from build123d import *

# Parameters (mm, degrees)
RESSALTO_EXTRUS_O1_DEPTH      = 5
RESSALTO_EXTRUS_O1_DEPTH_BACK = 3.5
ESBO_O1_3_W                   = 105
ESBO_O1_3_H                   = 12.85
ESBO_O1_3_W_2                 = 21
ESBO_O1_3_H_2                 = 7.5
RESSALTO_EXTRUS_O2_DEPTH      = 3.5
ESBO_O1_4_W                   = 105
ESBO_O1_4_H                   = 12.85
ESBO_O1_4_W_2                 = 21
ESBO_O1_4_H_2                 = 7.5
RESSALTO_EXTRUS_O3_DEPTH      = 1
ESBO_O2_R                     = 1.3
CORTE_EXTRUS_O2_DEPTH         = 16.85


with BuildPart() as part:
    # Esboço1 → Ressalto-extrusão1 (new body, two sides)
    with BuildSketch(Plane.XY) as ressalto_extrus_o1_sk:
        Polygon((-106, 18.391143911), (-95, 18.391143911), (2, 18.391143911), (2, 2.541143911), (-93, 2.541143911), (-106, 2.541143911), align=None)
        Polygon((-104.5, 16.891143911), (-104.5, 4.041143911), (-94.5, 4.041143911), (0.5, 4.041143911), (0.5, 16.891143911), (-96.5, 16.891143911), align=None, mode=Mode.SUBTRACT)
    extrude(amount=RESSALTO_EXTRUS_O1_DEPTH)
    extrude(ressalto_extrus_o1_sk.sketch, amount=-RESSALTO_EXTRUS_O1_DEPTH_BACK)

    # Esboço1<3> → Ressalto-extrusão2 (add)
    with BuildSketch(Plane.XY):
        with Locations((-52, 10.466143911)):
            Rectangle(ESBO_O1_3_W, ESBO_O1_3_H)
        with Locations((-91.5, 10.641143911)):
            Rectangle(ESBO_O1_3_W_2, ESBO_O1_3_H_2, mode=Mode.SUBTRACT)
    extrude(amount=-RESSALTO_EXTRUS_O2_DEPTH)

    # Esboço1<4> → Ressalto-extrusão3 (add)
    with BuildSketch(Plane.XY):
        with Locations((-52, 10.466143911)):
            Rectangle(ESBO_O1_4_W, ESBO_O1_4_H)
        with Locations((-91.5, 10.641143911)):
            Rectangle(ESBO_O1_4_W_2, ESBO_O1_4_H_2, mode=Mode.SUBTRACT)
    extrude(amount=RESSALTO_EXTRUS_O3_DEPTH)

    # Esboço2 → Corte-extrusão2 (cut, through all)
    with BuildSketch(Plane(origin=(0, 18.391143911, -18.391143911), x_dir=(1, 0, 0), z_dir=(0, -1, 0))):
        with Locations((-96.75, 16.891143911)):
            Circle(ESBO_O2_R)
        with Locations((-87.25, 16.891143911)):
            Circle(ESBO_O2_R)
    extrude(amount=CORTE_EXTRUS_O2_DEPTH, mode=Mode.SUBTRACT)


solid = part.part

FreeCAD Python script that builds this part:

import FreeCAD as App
import Part
import Sketcher
from FreeCAD import Vector

doc = App.newDocument("Part")
params = doc.addObject("Spreadsheet::Sheet", "Params")
for row, (alias, value) in enumerate([
    ("sketch1_width", "108 mm"),
    ("sketch1_width2", "105 mm"),
    ("sketch1_height", "15.85 mm"),
    ("sketch1_height2", "12.85 mm"),
    ("pad1_length", "5 mm"),
    ("pad1_length2", "3.5 mm"),
    ("sketch2_width", "105 mm"),
    ("sketch2_width2", "21 mm"),
    ("sketch2_height", "7.5 mm"),
    ("sketch2_height2", "12.85 mm"),
    ("pad2_length", "3.5 mm"),
    ("sketch3_width", "105 mm"),
    ("sketch3_width2", "21 mm"),
    ("sketch3_height", "7.5 mm"),
    ("sketch3_height2", "12.85 mm"),
    ("pad3_length", "1 mm"),
    ("sketch4_diameter", "2.6 mm"),
], start=1):
    params.set(f"A{row}", alias)
    params.set(f"B{row}", "=" + value)
    params.setAlias(f"B{row}", alias)

body = doc.addObject("PartDesign::Body", "Body")

sketch1 = body.newObject("Sketcher::SketchObject", "Sketch")
sketch1.AttachmentSupport = (doc.getObject("XY_Plane"), [""])
sketch1.MapMode = "FlatFace"
sketch1.addGeometry(Part.LineSegment(Vector(2, 18, 0), Vector(-106, 18, 0)), False)
sketch1.addGeometry(Part.LineSegment(Vector(-106, 18, 0), Vector(-106, 3, 0)), False)
sketch1.addGeometry(Part.LineSegment(Vector(-106, 3, 0), Vector(2, 3, 0)), False)
sketch1.addGeometry(Part.LineSegment(Vector(2, 3, 0), Vector(2, 18, 0)), False)
sketch1.addGeometry(Part.LineSegment(Vector(-104, 17, 0), Vector(0, 17, 0)), False)
sketch1.addGeometry(Part.LineSegment(Vector(0, 17, 0), Vector(0, 4, 0)), False)
sketch1.addGeometry(Part.LineSegment(Vector(0, 4, 0), Vector(-104, 4, 0)), False)
sketch1.addGeometry(Part.LineSegment(Vector(-104, 4, 0), Vector(-104, 17, 0)), False)
sketch1.addConstraint(Sketcher.Constraint("Coincident", 0, 2, 1, 1))
sketch1.addConstraint(Sketcher.Constraint("Coincident", 1, 2, 2, 1))
sketch1.addConstraint(Sketcher.Constraint("Coincident", 2, 2, 3, 1))
sketch1.addConstraint(Sketcher.Constraint("Coincident", 3, 2, 0, 1))
sketch1.addConstraint(Sketcher.Constraint("Coincident", 4, 2, 5, 1))
sketch1.addConstraint(Sketcher.Constraint("Coincident", 5, 2, 6, 1))
sketch1.addConstraint(Sketcher.Constraint("Coincident", 6, 2, 7, 1))
sketch1.addConstraint(Sketcher.Constraint("Coincident", 7, 2, 4, 1))
sketch1.addConstraint(Sketcher.Constraint("Horizontal", 0))
sketch1.addConstraint(Sketcher.Constraint("Vertical", 1))
sketch1.addConstraint(Sketcher.Constraint("Horizontal", 2))
sketch1.addConstraint(Sketcher.Constraint("Vertical", 3))
sketch1.addConstraint(Sketcher.Constraint("Horizontal", 4))
sketch1.addConstraint(Sketcher.Constraint("Vertical", 5))
sketch1.addConstraint(Sketcher.Constraint("Horizontal", 6))
sketch1.addConstraint(Sketcher.Constraint("Vertical", 7))
sketch1.addConstraint(Sketcher.Constraint("DistanceX", 0, 2, 0, 1, 108.0))
sketch1.addConstraint(Sketcher.Constraint("DistanceX", 4, 1, 4, 2, 105.0))
sketch1.addConstraint(Sketcher.Constraint("DistanceX", 0, 2, -1, 1, 106.0))
sketch1.addConstraint(Sketcher.Constraint("DistanceY", 1, 2, 1, 1, 15.85))
sketch1.addConstraint(Sketcher.Constraint("DistanceY", 5, 2, 5, 1, 12.85))
sketch1.addConstraint(Sketcher.Constraint("DistanceX", -1, 1, 4, 2, 0.5))
sketch1.addConstraint(Sketcher.Constraint("DistanceY", 4, 2, 3, 2, 1.5))
sketch1.addConstraint(Sketcher.Constraint("DistanceY", -1, 1, 0, 2, 18.391144))
sketch1.setExpression("Constraints[16]", "Params.sketch1_width")
sketch1.setExpression("Constraints[17]", "Params.sketch1_width2")
sketch1.setExpression("Constraints[19]", "Params.sketch1_height")
sketch1.setExpression("Constraints[20]", "Params.sketch1_height2")
pad1 = body.newObject("PartDesign::Pad", "Pad")
pad1.Profile = sketch1
pad1.Type = "TwoLengths"
pad1.setExpression("Length", "Params.pad1_length")
pad1.setExpression("Length2", "Params.pad1_length2")

sketch2 = body.newObject("Sketcher::SketchObject", "Sketch001")
sketch2.AttachmentSupport = (doc.getObject("XY_Plane"), [""])
sketch2.MapMode = "FlatFace"
sketch2.addGeometry(Part.LineSegment(Vector(-104, 17, 0), Vector(-104, 4, 0)), False)
sketch2.addGeometry(Part.LineSegment(Vector(-104, 4, 0), Vector(0, 4, 0)), False)
sketch2.addGeometry(Part.LineSegment(Vector(0, 4, 0), Vector(0, 17, 0)), False)
sketch2.addGeometry(Part.LineSegment(Vector(0, 17, 0), Vector(-104, 17, 0)), False)
sketch2.addGeometry(Part.LineSegment(Vector(-81, 7, 0), Vector(-102, 7, 0)), False)
sketch2.addGeometry(Part.LineSegment(Vector(-102, 7, 0), Vector(-102, 14, 0)), False)
sketch2.addGeometry(Part.LineSegment(Vector(-102, 14, 0), Vector(-81, 14, 0)), False)
sketch2.addGeometry(Part.LineSegment(Vector(-81, 14, 0), Vector(-81, 7, 0)), False)
sketch2.addConstraint(Sketcher.Constraint("Coincident", 0, 2, 1, 1))
sketch2.addConstraint(Sketcher.Constraint("Coincident", 1, 2, 2, 1))
sketch2.addConstraint(Sketcher.Constraint("Coincident", 2, 2, 3, 1))
sketch2.addConstraint(Sketcher.Constraint("Coincident", 3, 2, 0, 1))
sketch2.addConstraint(Sketcher.Constraint("Coincident", 4, 2, 5, 1))
sketch2.addConstraint(Sketcher.Constraint("Coincident", 5, 2, 6, 1))
sketch2.addConstraint(Sketcher.Constraint("Coincident", 6, 2, 7, 1))
sketch2.addConstraint(Sketcher.Constraint("Coincident", 7, 2, 4, 1))
sketch2.addConstraint(Sketcher.Constraint("Vertical", 0))
sketch2.addConstraint(Sketcher.Constraint("Horizontal", 1))
sketch2.addConstraint(Sketcher.Constraint("Vertical", 2))
sketch2.addConstraint(Sketcher.Constraint("Horizontal", 3))
sketch2.addConstraint(Sketcher.Constraint("Horizontal", 4))
sketch2.addConstraint(Sketcher.Constraint("Vertical", 5))
sketch2.addConstraint(Sketcher.Constraint("Horizontal", 6))
sketch2.addConstraint(Sketcher.Constraint("Vertical", 7))
sketch2.addConstraint(Sketcher.Constraint("DistanceX", 1, 1, 1, 2, 105.0))
sketch2.addConstraint(Sketcher.Constraint("DistanceX", 4, 2, 4, 1, 21.0))
sketch2.addConstraint(Sketcher.Constraint("DistanceY", 5, 1, 5, 2, 7.5))
sketch2.addConstraint(Sketcher.Constraint("DistanceX", 4, 2, -1, 1, 102.0))
sketch2.addConstraint(Sketcher.Constraint("DistanceY", 4, 2, 3, 2, 10.0))
sketch2.addConstraint(Sketcher.Constraint("DistanceY", 0, 2, 0, 1, 12.85))
sketch2.addConstraint(Sketcher.Constraint("DistanceX", 0, 2, -1, 1, 104.5))
sketch2.addConstraint(Sketcher.Constraint("DistanceY", -1, 1, 0, 2, 4.041144))
sketch2.setExpression("Constraints[16]", "Params.sketch2_width")
sketch2.setExpression("Constraints[17]", "Params.sketch2_width2")
sketch2.setExpression("Constraints[18]", "Params.sketch2_height")
sketch2.setExpression("Constraints[21]", "Params.sketch2_height2")
pad2 = body.newObject("PartDesign::Pad", "Pad001")
pad2.Profile = sketch2
pad2.setExpression("Length", "Params.pad2_length")
pad2.Reversed = True

sketch3 = body.newObject("Sketcher::SketchObject", "Sketch002")
sketch3.AttachmentSupport = (doc.getObject("XY_Plane"), [""])
sketch3.MapMode = "FlatFace"
sketch3.addGeometry(Part.LineSegment(Vector(-104, 17, 0), Vector(-104, 4, 0)), False)
sketch3.addGeometry(Part.LineSegment(Vector(-104, 4, 0), Vector(0, 4, 0)), False)
sketch3.addGeometry(Part.LineSegment(Vector(0, 4, 0), Vector(0, 17, 0)), False)
sketch3.addGeometry(Part.LineSegment(Vector(0, 17, 0), Vector(-104, 17, 0)), False)
sketch3.addGeometry(Part.LineSegment(Vector(-81, 7, 0), Vector(-102, 7, 0)), False)
sketch3.addGeometry(Part.LineSegment(Vector(-102, 7, 0), Vector(-102, 14, 0)), False)
sketch3.addGeometry(Part.LineSegment(Vector(-102, 14, 0), Vector(-81, 14, 0)), False)
sketch3.addGeometry(Part.LineSegment(Vector(-81, 14, 0), Vector(-81, 7, 0)), False)
sketch3.addConstraint(Sketcher.Constraint("Coincident", 0, 2, 1, 1))
sketch3.addConstraint(Sketcher.Constraint("Coincident", 1, 2, 2, 1))
sketch3.addConstraint(Sketcher.Constraint("Coincident", 2, 2, 3, 1))
sketch3.addConstraint(Sketcher.Constraint("Coincident", 3, 2, 0, 1))
sketch3.addConstraint(Sketcher.Constraint("Coincident", 4, 2, 5, 1))
sketch3.addConstraint(Sketcher.Constraint("Coincident", 5, 2, 6, 1))
sketch3.addConstraint(Sketcher.Constraint("Coincident", 6, 2, 7, 1))
sketch3.addConstraint(Sketcher.Constraint("Coincident", 7, 2, 4, 1))
sketch3.addConstraint(Sketcher.Constraint("Vertical", 0))
sketch3.addConstraint(Sketcher.Constraint("Horizontal", 1))
sketch3.addConstraint(Sketcher.Constraint("Vertical", 2))
sketch3.addConstraint(Sketcher.Constraint("Horizontal", 3))
sketch3.addConstraint(Sketcher.Constraint("Horizontal", 4))
sketch3.addConstraint(Sketcher.Constraint("Vertical", 5))
sketch3.addConstraint(Sketcher.Constraint("Horizontal", 6))
sketch3.addConstraint(Sketcher.Constraint("Vertical", 7))
sketch3.addConstraint(Sketcher.Constraint("DistanceX", 1, 1, 1, 2, 105.0))
sketch3.addConstraint(Sketcher.Constraint("DistanceX", 4, 2, 4, 1, 21.0))
sketch3.addConstraint(Sketcher.Constraint("DistanceY", 5, 1, 5, 2, 7.5))
sketch3.addConstraint(Sketcher.Constraint("DistanceX", 4, 2, -1, 1, 102.0))
sketch3.addConstraint(Sketcher.Constraint("DistanceY", 4, 2, 3, 2, 10.0))
sketch3.addConstraint(Sketcher.Constraint("DistanceY", 0, 2, 0, 1, 12.85))
sketch3.addConstraint(Sketcher.Constraint("DistanceX", 0, 2, -1, 1, 104.5))
sketch3.addConstraint(Sketcher.Constraint("DistanceY", -1, 1, 0, 2, 4.041144))
sketch3.setExpression("Constraints[16]", "Params.sketch3_width")
sketch3.setExpression("Constraints[17]", "Params.sketch3_width2")
sketch3.setExpression("Constraints[18]", "Params.sketch3_height")
sketch3.setExpression("Constraints[21]", "Params.sketch3_height2")
pad3 = body.newObject("PartDesign::Pad", "Pad002")
pad3.Profile = sketch3
pad3.setExpression("Length", "Params.pad3_length")

sketch4 = body.newObject("Sketcher::SketchObject", "Sketch003")
sketch4.AttachmentSupport = (doc.getObject("XZ_Plane"), [""])
sketch4.MapMode = "FlatFace"
sketch4.AttachmentOffset = App.Placement(Vector(0, 0, -18.391144), App.Rotation())
sketch4.addGeometry(Part.Circle(Vector(-96.8, -1.5, 0), Vector(0, 0, 1), 1.3), False)
sketch4.addGeometry(Part.Circle(Vector(-87.2, -1.5, 0), Vector(0, 0, 1), 1.3), False)
sketch4.addConstraint(Sketcher.Constraint("Equal", 0, 1))
sketch4.addConstraint(Sketcher.Constraint("Horizontal", 0, 3, 1, 3))
sketch4.addConstraint(Sketcher.Constraint("Diameter", 0, 2.6))
sketch4.addConstraint(Sketcher.Constraint("DistanceY", 0, 3, -1, 1, 1.5))
sketch4.addConstraint(Sketcher.Constraint("DistanceX", 0, 3, 1, 3, 9.5))
sketch4.addConstraint(Sketcher.Constraint("DistanceX", 0, 3, -1, 1, 96.75))
sketch4.setExpression("Constraints[2]", "Params.sketch4_diameter")
pocket1 = body.newObject("PartDesign::Pocket", "Pocket")
pocket1.Profile = sketch4
pocket1.Type = "ThroughAll"
pocket1.Reversed = True

doc.recompute()
